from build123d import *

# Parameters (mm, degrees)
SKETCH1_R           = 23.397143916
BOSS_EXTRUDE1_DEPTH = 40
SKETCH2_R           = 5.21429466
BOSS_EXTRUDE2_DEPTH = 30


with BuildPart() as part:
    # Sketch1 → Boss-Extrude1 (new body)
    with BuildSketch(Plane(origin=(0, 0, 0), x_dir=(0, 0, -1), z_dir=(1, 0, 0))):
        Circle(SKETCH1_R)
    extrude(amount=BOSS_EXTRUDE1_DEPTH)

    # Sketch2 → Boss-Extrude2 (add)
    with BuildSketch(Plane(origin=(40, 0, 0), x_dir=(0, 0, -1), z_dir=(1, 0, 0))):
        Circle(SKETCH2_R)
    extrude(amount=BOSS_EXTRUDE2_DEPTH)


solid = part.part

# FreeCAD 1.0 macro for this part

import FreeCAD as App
import Part
import Sketcher
Q = App.Units.Quantity

doc = App.newDocument("Part")
params = doc.addObject("Spreadsheet::Sheet", "Params")
for row, (alias, value) in enumerate([
    ("pad1_length", "40 mm"),
    ("pad2_length", "30 mm"),
], start=1):
    params.set(f"A{row}", alias)
    params.set(f"B{row}", "=" + value)
    params.setAlias(f"B{row}", alias)

body = doc.addObject("PartDesign::Body", "Body")

sketch1 = doc.addObject("Sketcher::SketchObject", "Sketch")
body.addObject(sketch1)
sketch1.AttachmentSupport = (doc.YZ_Plane, [""])
sketch1.MapMode = "FlatFace"
sketch1.addGeometry(Part.Circle(App.Vector(0, 0, 0), App.Vector(0, 0, 1), 23), False)
sketch1.addConstraint(Sketcher.Constraint("Coincident", 0, 3, -1, 1))
sketch1.addConstraint(Sketcher.Constraint("Diameter", 0, Q("46.794288 mm")))
pad1 = doc.addObject("PartDesign::Pad", "Pad")
body.addObject(pad1)
pad1.Profile = sketch1
pad1.setExpression("Length", "Params.pad1_length")

sketch2 = doc.addObject("Sketcher::SketchObject", "Sketch001")
body.addObject(sketch2)
sketch2.AttachmentSupport = (doc.YZ_Plane, [""])
sketch2.MapMode = "FlatFace"
sketch2.AttachmentOffset = App.Placement(App.Vector(0, 0, 40), App.Rotation())
sketch2.addGeometry(Part.Circle(App.Vector(0, 0, 0), App.Vector(0, 0, 1), 5), False)
sketch2.addConstraint(Sketcher.Constraint("Coincident", 0, 3, -1, 1))
sketch2.addConstraint(Sketcher.Constraint("Diameter", 0, Q("10.428589 mm")))
pad2 = doc.addObject("PartDesign::Pad", "Pad001")
body.addObject(pad2)
pad2.Profile = sketch2
pad2.setExpression("Length", "Params.pad2_length")

doc.recompute()
